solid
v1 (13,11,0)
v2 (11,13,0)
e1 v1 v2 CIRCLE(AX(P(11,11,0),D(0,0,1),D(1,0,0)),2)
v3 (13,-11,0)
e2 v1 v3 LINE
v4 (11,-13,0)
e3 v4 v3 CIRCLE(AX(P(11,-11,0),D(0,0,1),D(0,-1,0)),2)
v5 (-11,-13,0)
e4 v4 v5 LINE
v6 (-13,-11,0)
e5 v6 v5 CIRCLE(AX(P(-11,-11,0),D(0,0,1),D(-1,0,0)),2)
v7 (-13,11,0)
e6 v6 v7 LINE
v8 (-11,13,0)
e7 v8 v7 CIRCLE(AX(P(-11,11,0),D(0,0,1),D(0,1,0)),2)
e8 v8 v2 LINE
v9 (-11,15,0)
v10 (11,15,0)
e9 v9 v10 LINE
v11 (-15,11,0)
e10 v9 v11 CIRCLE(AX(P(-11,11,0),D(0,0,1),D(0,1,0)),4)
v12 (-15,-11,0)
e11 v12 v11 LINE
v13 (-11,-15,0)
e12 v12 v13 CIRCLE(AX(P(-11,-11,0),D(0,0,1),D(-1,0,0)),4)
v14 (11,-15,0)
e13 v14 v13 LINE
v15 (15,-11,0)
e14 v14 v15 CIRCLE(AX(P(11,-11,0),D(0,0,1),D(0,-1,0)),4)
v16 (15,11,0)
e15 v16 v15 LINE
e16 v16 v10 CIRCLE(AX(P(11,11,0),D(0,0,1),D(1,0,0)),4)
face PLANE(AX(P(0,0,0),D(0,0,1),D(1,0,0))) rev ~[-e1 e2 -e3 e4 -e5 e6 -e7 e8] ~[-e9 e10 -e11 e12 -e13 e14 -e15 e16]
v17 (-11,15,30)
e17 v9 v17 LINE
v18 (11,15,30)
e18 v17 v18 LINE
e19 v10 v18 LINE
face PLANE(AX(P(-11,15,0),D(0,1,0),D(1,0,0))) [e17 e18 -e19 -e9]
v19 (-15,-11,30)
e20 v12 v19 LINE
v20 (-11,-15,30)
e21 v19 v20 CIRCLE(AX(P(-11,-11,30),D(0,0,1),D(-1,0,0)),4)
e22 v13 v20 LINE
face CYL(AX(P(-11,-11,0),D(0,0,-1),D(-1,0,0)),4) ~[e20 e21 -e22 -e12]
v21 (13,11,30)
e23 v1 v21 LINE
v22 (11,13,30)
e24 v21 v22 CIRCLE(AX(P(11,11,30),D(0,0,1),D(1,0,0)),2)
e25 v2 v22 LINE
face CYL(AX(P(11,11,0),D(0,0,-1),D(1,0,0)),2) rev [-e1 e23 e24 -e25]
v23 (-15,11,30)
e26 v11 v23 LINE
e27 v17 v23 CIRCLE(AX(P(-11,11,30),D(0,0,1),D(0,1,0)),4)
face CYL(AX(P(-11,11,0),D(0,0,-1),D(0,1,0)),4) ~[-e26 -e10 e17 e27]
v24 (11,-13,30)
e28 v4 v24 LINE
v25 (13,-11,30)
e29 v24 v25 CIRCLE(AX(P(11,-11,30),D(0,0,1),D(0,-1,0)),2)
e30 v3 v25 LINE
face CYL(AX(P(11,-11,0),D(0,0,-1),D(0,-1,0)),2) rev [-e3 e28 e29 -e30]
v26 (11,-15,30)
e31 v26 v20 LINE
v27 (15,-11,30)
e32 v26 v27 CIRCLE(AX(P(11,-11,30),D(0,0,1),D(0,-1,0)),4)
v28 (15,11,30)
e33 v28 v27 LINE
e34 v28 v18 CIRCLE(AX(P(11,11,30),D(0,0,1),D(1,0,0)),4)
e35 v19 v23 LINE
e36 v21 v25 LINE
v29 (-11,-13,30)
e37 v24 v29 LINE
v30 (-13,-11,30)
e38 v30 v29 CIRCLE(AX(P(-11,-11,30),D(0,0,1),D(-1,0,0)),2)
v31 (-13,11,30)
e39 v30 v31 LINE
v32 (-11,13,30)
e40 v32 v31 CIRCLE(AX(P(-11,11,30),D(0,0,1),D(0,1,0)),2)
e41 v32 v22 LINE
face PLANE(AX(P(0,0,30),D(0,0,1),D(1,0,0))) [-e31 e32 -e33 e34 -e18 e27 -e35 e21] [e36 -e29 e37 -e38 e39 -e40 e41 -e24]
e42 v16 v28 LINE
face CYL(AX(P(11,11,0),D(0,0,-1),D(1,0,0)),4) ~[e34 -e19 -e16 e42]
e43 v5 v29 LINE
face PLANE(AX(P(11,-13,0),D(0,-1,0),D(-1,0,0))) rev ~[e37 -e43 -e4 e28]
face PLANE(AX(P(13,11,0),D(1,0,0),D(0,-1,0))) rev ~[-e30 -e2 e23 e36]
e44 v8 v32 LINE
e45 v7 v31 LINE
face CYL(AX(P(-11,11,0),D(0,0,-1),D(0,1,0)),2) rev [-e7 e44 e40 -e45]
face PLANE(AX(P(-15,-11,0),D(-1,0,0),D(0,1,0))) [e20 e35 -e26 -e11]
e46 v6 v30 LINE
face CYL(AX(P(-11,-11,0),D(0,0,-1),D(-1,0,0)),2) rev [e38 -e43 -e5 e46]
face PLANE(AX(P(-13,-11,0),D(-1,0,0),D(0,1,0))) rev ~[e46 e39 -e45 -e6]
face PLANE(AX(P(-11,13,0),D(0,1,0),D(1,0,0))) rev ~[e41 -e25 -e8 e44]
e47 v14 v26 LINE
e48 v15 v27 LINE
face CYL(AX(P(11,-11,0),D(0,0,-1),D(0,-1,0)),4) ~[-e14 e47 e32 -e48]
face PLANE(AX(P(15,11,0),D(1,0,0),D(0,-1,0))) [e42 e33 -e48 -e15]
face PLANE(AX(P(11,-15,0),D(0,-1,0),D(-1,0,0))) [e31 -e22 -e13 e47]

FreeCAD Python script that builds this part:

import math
import FreeCAD as App
import Part
import Sketcher

doc = App.newDocument("Part")
body = doc.addObject("PartDesign::Body", "Body")

sketch1 = body.newObject("Sketcher::SketchObject", "Sketch")
sketch1.AttachmentSupport = (doc.getObject("XY_Plane"), [""])
sketch1.MapMode = "FlatFace"
sketch1.addGeometry(Part.LineSegment(App.Vector(-15, 11, 0), App.Vector(-15, -11, 0)), False)
sketch1.addGeometry(Part.ArcOfCircle(Part.Circle(App.Vector(-11, -11, 0), App.Vector(0, 0, 1), 4), math.radians(180), math.radians(270)), False)
sketch1.addGeometry(Part.LineSegment(App.Vector(-11, -15, 0), App.Vector(11, -15, 0)), False)
sketch1.addGeometry(Part.ArcOfCircle(Part.Circle(App.Vector(11, -11, 0), App.Vector(0, 0, 1), 4), math.radians(-90), math.radians(0)), False)
sketch1.addGeometry(Part.LineSegment(App.Vector(15, -11, 0), App.Vector(15, 11, 0)), False)
sketch1.addGeometry(Part.ArcOfCircle(Part.Circle(App.Vector(11, 11, 0), App.Vector(0, 0, 1), 4), math.radians(0), math.radians(90)), False)
sketch1.addGeometry(Part.LineSegment(App.Vector(11, 15, 0), App.Vector(-11, 15, 0)), False)
sketch1.addGeometry(Part.ArcOfCircle(Part.Circle(App.Vector(-11, 11, 0), App.Vector(0, 0, 1), 4), math.radians(90), math.radians(180)), False)
sketch1.addGeometry(Part.ArcOfCircle(Part.Circle(App.Vector(-11, 11, 0), App.Vector(0, 0, 1), 2), math.radians(90), math.radians(180)), False)
sketch1.addGeometry(Part.LineSegment(App.Vector(-11, 13, 0), App.Vector(11, 13, 0)), False)
sketch1.addGeometry(Part.ArcOfCircle(Part.Circle(App.Vector(11, 11, 0), App.Vector(0, 0, 1), 2), math.radians(0), math.radians(90)), False)
sketch1.addGeometry(Part.LineSegment(App.Vector(13, 11, 0), App.Vector(13, -11, 0)), False)
sketch1.addGeometry(Part.ArcOfCircle(Part.Circle(App.Vector(11, -11, 0), App.Vector(0, 0, 1), 2), math.radians(-90), math.radians(0)), False)
sketch1.addGeometry(Part.LineSegment(App.Vector(11, -13, 0), App.Vector(-11, -13, 0)), False)
sketch1.addGeometry(Part.ArcOfCircle(Part.Circle(App.Vector(-11, -11, 0), App.Vector(0, 0, 1), 2), math.radians(180), math.radians(270)), False)
sketch1.addGeometry(Part.LineSegment(App.Vector(-13, -11, 0), App.Vector(-13, 11, 0)), False)
sketch1.addConstraint(Sketcher.Constraint("Tangent", 0, 2, 1, 1))
sketch1.addConstraint(Sketcher.Constraint("Tangent", 1, 2, 2, 1))
sketch1.addConstraint(Sketcher.Constraint("Tangent", 2, 2, 3, 1))
sketch1.addConstraint(Sketcher.Constraint("Tangent", 3, 2, 4, 1))
sketch1.addConstraint(Sketcher.Constraint("Tangent", 4, 2, 5, 1))
sketch1.addConstraint(Sketcher.Constraint("Tangent", 5, 2, 6, 1))
sketch1.addConstraint(Sketcher.Constraint("Tangent", 6, 2, 7, 1))
sketch1.addConstraint(Sketcher.Constraint("Tangent", 7, 2, 0, 1))
sketch1.addConstraint(Sketcher.Constraint("Tangent", 8, 1, 9, 1))
sketch1.addConstraint(Sketcher.Constraint("Tangent", 9, 2, 10, 2))
sketch1.addConstraint(Sketcher.Constraint("Tangent", 10, 1, 11, 1))
sketch1.addConstraint(Sketcher.Constraint("Tangent", 11, 2, 12, 2))
sketch1.addConstraint(Sketcher.Constraint("Tangent", 12, 1, 13, 1))
sketch1.addConstraint(Sketcher.Constraint("Tangent", 13, 2, 14, 2))
sketch1.addConstraint(Sketcher.Constraint("Tangent", 14, 1, 15, 1))
sketch1.addConstraint(Sketcher.Constraint("Tangent", 15, 2, 8, 2))
sketch1.addConstraint(Sketcher.Constraint("Vertical", 0))
sketch1.addConstraint(Sketcher.Constraint("Horizontal", 2))
sketch1.addConstraint(Sketcher.Constraint("Vertical", 4))
sketch1.addConstraint(Sketcher.Constraint("Horizontal", 6))
sketch1.addConstraint(Sketcher.Constraint("Horizontal", 9))
sketch1.addConstraint(Sketcher.Constraint("Vertical", 11))
sketch1.addConstraint(Sketcher.Constraint("Horizontal", 13))
sketch1.addConstraint(Sketcher.Constraint("Vertical", 15))
sketch1.addConstraint(Sketcher.Constraint("Coincident", 8, 3, 7, 3))
sketch1.addConstraint(Sketcher.Constraint("Coincident", 10, 3, 5, 3))
sketch1.addConstraint(Sketcher.Constraint("Coincident", 12, 3, 3, 3))
sketch1.addConstraint(Sketcher.Constraint("Equal", 1, 3))
sketch1.addConstraint(Sketcher.Constraint("Equal", 3, 5))
sketch1.addConstraint(Sketcher.Constraint("Equal", 5, 7))
sketch1.addConstraint(Sketcher.Constraint("Equal", 12, 14))
sketch1.addConstraint(Sketcher.Constraint("Symmetric", 1, 3, 5, 3, -1, 1))
sketch1.addConstraint(Sketcher.Constraint("Equal", 13, 0))
sketch1.addConstraint(Sketcher.Constraint("Radius", 1, 4.0))
sketch1.addConstraint(Sketcher.Constraint("Radius", 8, 2.0))
sketch1.addConstraint(Sketcher.Constraint("DistanceX", 0, 2, -1, 1, 15.0))
pad1 = body.newObject("PartDesign::Pad", "Pad")
pad1.Profile = sketch1
pad1.Length = 30

doc.recompute()
